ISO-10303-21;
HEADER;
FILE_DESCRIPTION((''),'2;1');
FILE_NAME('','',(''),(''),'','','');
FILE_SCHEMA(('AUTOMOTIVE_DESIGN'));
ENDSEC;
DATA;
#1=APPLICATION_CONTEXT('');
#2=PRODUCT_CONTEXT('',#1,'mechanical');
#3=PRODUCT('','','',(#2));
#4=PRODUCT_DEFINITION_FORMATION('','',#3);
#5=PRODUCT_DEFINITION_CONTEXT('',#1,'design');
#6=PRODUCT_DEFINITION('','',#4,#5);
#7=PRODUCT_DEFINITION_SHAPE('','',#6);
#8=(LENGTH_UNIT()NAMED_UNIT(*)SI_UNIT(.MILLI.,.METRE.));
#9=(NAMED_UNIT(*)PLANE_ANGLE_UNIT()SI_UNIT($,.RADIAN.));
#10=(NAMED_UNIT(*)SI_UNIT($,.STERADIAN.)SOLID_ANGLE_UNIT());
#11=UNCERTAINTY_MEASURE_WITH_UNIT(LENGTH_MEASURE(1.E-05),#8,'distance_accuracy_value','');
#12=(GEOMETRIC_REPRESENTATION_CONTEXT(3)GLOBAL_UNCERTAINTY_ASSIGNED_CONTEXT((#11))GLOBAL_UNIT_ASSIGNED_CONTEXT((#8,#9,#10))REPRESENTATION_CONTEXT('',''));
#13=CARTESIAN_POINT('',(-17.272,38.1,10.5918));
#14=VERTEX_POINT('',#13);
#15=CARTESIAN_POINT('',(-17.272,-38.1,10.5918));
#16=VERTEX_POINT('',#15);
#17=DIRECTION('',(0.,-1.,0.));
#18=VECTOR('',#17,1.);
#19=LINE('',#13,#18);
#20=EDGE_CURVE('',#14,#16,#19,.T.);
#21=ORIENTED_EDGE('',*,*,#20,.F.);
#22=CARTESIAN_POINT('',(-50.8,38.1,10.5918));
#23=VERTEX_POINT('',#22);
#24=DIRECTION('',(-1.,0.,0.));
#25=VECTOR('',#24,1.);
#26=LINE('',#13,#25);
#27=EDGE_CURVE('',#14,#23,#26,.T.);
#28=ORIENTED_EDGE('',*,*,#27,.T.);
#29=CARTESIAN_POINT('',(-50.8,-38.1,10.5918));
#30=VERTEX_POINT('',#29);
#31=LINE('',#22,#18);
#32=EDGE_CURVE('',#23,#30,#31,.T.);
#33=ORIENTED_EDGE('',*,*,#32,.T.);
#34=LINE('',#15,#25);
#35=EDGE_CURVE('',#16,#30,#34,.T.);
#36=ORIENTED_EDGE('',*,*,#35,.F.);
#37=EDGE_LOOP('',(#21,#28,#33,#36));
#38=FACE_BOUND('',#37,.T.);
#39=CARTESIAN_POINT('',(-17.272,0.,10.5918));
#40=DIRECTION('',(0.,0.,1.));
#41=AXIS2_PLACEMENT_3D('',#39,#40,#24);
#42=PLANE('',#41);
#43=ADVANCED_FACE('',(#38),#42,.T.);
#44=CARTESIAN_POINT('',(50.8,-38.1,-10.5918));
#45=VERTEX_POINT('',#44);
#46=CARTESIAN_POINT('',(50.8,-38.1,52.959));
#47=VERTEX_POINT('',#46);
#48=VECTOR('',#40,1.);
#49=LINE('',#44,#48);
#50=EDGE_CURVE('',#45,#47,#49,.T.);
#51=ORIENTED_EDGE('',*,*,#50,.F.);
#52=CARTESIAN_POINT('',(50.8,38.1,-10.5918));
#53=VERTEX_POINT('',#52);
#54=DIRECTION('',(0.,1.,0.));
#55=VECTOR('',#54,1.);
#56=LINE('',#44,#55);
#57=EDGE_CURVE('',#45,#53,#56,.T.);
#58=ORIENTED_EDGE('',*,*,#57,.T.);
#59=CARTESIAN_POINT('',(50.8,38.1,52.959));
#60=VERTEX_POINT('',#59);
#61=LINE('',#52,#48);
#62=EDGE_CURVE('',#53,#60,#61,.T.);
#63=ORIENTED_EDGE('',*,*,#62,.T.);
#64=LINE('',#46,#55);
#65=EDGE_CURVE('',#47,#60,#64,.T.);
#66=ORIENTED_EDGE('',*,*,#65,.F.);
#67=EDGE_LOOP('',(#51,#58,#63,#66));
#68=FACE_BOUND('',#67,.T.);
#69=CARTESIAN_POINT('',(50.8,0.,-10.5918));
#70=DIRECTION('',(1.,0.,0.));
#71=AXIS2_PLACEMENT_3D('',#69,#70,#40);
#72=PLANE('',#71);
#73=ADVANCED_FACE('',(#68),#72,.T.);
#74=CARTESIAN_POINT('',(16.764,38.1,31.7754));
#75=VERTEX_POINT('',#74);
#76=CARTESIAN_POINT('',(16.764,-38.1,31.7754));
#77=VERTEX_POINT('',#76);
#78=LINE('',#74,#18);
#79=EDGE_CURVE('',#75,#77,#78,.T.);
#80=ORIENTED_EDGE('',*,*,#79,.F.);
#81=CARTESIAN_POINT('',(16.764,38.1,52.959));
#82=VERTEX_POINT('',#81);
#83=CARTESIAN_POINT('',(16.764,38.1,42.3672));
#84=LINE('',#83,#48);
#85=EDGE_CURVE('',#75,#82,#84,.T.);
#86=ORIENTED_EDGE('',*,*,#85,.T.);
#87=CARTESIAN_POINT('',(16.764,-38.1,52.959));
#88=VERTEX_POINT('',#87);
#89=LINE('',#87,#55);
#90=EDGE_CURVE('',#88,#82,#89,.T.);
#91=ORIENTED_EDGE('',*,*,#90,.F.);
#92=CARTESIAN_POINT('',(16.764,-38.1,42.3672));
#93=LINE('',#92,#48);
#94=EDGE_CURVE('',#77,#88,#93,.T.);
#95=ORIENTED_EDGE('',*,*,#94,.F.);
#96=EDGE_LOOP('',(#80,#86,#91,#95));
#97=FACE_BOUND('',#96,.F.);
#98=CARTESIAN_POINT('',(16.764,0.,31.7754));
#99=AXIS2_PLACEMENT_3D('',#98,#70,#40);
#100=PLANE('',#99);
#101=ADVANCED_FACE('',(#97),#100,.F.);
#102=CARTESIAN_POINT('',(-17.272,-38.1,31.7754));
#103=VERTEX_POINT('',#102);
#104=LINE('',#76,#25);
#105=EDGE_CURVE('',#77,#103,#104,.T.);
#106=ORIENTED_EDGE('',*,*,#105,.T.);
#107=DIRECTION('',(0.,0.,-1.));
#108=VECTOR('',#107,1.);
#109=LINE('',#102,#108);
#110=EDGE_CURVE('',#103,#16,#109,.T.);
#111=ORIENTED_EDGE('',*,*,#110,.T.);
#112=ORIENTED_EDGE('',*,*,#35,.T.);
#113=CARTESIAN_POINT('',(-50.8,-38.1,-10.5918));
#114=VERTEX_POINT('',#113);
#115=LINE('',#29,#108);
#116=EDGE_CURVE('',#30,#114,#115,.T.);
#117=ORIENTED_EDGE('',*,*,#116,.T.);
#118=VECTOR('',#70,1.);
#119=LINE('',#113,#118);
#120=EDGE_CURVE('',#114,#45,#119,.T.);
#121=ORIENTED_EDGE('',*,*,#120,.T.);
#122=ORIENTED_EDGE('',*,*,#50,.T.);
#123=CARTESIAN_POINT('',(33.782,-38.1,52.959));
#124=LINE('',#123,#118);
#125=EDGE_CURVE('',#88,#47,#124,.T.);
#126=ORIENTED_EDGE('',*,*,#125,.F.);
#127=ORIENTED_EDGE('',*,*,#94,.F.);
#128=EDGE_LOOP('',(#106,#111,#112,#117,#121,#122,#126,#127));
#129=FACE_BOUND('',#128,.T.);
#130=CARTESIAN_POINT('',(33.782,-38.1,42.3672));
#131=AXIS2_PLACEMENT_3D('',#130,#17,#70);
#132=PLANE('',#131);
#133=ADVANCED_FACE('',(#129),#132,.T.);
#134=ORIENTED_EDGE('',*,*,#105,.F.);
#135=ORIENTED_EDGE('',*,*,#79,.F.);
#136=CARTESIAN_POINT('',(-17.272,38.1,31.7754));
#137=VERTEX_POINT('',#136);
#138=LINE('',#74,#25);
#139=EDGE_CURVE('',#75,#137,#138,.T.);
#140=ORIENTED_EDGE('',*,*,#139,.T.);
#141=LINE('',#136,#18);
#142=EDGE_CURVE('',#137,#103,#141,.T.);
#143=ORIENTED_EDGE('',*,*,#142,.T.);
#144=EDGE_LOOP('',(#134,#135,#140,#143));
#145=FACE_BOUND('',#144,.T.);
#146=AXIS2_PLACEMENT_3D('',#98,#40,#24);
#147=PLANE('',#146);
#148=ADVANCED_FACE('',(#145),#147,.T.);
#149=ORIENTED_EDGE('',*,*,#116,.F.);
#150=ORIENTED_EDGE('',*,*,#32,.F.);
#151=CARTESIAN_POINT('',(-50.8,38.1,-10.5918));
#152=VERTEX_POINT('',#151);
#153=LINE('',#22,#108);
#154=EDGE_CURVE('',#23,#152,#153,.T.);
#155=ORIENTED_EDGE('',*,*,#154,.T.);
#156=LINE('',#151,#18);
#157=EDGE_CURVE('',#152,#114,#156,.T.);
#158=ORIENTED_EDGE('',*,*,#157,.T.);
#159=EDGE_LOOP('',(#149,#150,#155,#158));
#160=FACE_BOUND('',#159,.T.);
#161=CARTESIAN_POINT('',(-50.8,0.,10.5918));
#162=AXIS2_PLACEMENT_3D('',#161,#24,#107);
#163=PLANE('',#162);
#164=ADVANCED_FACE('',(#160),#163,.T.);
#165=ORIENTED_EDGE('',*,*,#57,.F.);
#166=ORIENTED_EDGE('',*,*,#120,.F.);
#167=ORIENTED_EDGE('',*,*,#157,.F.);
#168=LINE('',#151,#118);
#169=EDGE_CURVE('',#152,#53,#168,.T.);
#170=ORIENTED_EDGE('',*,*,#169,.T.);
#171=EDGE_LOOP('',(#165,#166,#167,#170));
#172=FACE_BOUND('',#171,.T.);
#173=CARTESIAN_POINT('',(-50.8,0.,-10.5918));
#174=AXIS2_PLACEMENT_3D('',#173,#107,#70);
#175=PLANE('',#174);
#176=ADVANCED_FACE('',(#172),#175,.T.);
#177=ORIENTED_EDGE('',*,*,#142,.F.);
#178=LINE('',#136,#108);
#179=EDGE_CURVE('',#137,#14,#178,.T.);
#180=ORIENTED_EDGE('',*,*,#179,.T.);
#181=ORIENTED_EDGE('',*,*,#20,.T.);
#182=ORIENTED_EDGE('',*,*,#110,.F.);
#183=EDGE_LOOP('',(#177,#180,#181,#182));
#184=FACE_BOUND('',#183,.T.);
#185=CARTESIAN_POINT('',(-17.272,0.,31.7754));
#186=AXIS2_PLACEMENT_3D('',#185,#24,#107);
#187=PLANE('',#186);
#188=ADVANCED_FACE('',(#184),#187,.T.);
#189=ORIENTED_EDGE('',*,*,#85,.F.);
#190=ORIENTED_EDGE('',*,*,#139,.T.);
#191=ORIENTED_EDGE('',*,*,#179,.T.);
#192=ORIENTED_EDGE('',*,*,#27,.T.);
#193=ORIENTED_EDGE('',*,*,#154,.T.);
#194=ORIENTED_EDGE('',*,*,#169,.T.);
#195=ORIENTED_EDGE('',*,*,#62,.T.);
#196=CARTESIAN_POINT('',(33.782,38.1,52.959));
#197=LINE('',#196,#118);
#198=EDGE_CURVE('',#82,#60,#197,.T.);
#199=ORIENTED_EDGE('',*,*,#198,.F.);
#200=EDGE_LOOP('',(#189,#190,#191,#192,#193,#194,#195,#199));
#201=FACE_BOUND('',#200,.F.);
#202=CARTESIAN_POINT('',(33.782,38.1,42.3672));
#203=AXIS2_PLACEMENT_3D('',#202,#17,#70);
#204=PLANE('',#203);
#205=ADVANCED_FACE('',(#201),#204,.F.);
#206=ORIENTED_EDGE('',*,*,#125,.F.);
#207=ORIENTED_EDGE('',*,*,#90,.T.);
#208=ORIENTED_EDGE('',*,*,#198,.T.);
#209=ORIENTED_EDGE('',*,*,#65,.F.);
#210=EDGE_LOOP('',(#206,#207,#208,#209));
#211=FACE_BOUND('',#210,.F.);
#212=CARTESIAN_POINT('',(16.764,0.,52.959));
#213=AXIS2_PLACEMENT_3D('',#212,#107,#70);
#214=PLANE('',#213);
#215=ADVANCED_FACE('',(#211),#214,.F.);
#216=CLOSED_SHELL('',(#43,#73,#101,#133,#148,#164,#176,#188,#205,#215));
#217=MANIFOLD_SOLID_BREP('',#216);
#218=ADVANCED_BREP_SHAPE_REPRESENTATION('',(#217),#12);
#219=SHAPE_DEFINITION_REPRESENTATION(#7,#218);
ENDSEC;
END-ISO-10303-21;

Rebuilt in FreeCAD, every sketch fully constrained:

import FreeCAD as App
import Part
import Sketcher
from FreeCAD import Vector
Q = App.Units.Quantity

doc = App.newDocument("Part")
body = doc.addObject("PartDesign::Body", "Body")

sketch1 = body.newObject("Sketcher::SketchObject", "Sketch")
sketch1.AttachmentSupport = (doc.getObject("XZ_Plane"), [""])
sketch1.MapMode = "FlatFace"
sketch1.addGeometry([
    Part.LineSegment(Vector(17, 53, 0), Vector(17, 32, 0)),
    Part.LineSegment(Vector(17, 32, 0), Vector(-17, 32, 0)),
    Part.LineSegment(Vector(-17, 32, 0), Vector(-17, 11, 0)),
    Part.LineSegment(Vector(-17, 11, 0), Vector(-51, 11, 0)),
    Part.LineSegment(Vector(-51, 11, 0), Vector(-51, -11, 0)),
    Part.LineSegment(Vector(-51, -11, 0), Vector(51, -11, 0)),
    Part.LineSegment(Vector(51, -11, 0), Vector(51, 53, 0)),
    Part.LineSegment(Vector(51, 53, 0), Vector(17, 53, 0)),
], False)
sketch1.addConstraint([
    Sketcher.Constraint("Coincident", 0, 2, 1, 1),
    Sketcher.Constraint("Coincident", 1, 2, 2, 1),
    Sketcher.Constraint("Coincident", 2, 2, 3, 1),
    Sketcher.Constraint("Coincident", 3, 2, 4, 1),
    Sketcher.Constraint("Coincident", 4, 2, 5, 1),
    Sketcher.Constraint("Coincident", 5, 2, 6, 1),
    Sketcher.Constraint("Coincident", 6, 2, 7, 1),
    Sketcher.Constraint("Coincident", 7, 2, 0, 1),
    Sketcher.Constraint("Vertical", 0),
    Sketcher.Constraint("Horizontal", 1),
    Sketcher.Constraint("Vertical", 2),
    Sketcher.Constraint("Horizontal", 3),
    Sketcher.Constraint("Vertical", 4),
    Sketcher.Constraint("Horizontal", 5),
    Sketcher.Constraint("Vertical", 6),
    Sketcher.Constraint("Horizontal", 7),
    Sketcher.Constraint("Symmetric", 3, 2, 5, 2, -1, 1),
    Sketcher.Constraint("Equal", 1, 7),
    Sketcher.Constraint("Equal", 0, 2),
    Sketcher.Constraint("Equal", 2, 4),
    Sketcher.Constraint("DistanceX", 5, 1, 5, 2, Q("4 in")),
    Sketcher.Constraint("DistanceX", 1, 2, 1, 1, Q("1.34 in")),
    Sketcher.Constraint("DistanceY", 0, 2, 0, 1, Q("0.834 in")),
])
pad1 = body.newObject("PartDesign::Pad", "Pad")
pad1.Profile = sketch1
pad1.Length = Q("3 in")
pad1.Midplane = True

doc.recompute()
